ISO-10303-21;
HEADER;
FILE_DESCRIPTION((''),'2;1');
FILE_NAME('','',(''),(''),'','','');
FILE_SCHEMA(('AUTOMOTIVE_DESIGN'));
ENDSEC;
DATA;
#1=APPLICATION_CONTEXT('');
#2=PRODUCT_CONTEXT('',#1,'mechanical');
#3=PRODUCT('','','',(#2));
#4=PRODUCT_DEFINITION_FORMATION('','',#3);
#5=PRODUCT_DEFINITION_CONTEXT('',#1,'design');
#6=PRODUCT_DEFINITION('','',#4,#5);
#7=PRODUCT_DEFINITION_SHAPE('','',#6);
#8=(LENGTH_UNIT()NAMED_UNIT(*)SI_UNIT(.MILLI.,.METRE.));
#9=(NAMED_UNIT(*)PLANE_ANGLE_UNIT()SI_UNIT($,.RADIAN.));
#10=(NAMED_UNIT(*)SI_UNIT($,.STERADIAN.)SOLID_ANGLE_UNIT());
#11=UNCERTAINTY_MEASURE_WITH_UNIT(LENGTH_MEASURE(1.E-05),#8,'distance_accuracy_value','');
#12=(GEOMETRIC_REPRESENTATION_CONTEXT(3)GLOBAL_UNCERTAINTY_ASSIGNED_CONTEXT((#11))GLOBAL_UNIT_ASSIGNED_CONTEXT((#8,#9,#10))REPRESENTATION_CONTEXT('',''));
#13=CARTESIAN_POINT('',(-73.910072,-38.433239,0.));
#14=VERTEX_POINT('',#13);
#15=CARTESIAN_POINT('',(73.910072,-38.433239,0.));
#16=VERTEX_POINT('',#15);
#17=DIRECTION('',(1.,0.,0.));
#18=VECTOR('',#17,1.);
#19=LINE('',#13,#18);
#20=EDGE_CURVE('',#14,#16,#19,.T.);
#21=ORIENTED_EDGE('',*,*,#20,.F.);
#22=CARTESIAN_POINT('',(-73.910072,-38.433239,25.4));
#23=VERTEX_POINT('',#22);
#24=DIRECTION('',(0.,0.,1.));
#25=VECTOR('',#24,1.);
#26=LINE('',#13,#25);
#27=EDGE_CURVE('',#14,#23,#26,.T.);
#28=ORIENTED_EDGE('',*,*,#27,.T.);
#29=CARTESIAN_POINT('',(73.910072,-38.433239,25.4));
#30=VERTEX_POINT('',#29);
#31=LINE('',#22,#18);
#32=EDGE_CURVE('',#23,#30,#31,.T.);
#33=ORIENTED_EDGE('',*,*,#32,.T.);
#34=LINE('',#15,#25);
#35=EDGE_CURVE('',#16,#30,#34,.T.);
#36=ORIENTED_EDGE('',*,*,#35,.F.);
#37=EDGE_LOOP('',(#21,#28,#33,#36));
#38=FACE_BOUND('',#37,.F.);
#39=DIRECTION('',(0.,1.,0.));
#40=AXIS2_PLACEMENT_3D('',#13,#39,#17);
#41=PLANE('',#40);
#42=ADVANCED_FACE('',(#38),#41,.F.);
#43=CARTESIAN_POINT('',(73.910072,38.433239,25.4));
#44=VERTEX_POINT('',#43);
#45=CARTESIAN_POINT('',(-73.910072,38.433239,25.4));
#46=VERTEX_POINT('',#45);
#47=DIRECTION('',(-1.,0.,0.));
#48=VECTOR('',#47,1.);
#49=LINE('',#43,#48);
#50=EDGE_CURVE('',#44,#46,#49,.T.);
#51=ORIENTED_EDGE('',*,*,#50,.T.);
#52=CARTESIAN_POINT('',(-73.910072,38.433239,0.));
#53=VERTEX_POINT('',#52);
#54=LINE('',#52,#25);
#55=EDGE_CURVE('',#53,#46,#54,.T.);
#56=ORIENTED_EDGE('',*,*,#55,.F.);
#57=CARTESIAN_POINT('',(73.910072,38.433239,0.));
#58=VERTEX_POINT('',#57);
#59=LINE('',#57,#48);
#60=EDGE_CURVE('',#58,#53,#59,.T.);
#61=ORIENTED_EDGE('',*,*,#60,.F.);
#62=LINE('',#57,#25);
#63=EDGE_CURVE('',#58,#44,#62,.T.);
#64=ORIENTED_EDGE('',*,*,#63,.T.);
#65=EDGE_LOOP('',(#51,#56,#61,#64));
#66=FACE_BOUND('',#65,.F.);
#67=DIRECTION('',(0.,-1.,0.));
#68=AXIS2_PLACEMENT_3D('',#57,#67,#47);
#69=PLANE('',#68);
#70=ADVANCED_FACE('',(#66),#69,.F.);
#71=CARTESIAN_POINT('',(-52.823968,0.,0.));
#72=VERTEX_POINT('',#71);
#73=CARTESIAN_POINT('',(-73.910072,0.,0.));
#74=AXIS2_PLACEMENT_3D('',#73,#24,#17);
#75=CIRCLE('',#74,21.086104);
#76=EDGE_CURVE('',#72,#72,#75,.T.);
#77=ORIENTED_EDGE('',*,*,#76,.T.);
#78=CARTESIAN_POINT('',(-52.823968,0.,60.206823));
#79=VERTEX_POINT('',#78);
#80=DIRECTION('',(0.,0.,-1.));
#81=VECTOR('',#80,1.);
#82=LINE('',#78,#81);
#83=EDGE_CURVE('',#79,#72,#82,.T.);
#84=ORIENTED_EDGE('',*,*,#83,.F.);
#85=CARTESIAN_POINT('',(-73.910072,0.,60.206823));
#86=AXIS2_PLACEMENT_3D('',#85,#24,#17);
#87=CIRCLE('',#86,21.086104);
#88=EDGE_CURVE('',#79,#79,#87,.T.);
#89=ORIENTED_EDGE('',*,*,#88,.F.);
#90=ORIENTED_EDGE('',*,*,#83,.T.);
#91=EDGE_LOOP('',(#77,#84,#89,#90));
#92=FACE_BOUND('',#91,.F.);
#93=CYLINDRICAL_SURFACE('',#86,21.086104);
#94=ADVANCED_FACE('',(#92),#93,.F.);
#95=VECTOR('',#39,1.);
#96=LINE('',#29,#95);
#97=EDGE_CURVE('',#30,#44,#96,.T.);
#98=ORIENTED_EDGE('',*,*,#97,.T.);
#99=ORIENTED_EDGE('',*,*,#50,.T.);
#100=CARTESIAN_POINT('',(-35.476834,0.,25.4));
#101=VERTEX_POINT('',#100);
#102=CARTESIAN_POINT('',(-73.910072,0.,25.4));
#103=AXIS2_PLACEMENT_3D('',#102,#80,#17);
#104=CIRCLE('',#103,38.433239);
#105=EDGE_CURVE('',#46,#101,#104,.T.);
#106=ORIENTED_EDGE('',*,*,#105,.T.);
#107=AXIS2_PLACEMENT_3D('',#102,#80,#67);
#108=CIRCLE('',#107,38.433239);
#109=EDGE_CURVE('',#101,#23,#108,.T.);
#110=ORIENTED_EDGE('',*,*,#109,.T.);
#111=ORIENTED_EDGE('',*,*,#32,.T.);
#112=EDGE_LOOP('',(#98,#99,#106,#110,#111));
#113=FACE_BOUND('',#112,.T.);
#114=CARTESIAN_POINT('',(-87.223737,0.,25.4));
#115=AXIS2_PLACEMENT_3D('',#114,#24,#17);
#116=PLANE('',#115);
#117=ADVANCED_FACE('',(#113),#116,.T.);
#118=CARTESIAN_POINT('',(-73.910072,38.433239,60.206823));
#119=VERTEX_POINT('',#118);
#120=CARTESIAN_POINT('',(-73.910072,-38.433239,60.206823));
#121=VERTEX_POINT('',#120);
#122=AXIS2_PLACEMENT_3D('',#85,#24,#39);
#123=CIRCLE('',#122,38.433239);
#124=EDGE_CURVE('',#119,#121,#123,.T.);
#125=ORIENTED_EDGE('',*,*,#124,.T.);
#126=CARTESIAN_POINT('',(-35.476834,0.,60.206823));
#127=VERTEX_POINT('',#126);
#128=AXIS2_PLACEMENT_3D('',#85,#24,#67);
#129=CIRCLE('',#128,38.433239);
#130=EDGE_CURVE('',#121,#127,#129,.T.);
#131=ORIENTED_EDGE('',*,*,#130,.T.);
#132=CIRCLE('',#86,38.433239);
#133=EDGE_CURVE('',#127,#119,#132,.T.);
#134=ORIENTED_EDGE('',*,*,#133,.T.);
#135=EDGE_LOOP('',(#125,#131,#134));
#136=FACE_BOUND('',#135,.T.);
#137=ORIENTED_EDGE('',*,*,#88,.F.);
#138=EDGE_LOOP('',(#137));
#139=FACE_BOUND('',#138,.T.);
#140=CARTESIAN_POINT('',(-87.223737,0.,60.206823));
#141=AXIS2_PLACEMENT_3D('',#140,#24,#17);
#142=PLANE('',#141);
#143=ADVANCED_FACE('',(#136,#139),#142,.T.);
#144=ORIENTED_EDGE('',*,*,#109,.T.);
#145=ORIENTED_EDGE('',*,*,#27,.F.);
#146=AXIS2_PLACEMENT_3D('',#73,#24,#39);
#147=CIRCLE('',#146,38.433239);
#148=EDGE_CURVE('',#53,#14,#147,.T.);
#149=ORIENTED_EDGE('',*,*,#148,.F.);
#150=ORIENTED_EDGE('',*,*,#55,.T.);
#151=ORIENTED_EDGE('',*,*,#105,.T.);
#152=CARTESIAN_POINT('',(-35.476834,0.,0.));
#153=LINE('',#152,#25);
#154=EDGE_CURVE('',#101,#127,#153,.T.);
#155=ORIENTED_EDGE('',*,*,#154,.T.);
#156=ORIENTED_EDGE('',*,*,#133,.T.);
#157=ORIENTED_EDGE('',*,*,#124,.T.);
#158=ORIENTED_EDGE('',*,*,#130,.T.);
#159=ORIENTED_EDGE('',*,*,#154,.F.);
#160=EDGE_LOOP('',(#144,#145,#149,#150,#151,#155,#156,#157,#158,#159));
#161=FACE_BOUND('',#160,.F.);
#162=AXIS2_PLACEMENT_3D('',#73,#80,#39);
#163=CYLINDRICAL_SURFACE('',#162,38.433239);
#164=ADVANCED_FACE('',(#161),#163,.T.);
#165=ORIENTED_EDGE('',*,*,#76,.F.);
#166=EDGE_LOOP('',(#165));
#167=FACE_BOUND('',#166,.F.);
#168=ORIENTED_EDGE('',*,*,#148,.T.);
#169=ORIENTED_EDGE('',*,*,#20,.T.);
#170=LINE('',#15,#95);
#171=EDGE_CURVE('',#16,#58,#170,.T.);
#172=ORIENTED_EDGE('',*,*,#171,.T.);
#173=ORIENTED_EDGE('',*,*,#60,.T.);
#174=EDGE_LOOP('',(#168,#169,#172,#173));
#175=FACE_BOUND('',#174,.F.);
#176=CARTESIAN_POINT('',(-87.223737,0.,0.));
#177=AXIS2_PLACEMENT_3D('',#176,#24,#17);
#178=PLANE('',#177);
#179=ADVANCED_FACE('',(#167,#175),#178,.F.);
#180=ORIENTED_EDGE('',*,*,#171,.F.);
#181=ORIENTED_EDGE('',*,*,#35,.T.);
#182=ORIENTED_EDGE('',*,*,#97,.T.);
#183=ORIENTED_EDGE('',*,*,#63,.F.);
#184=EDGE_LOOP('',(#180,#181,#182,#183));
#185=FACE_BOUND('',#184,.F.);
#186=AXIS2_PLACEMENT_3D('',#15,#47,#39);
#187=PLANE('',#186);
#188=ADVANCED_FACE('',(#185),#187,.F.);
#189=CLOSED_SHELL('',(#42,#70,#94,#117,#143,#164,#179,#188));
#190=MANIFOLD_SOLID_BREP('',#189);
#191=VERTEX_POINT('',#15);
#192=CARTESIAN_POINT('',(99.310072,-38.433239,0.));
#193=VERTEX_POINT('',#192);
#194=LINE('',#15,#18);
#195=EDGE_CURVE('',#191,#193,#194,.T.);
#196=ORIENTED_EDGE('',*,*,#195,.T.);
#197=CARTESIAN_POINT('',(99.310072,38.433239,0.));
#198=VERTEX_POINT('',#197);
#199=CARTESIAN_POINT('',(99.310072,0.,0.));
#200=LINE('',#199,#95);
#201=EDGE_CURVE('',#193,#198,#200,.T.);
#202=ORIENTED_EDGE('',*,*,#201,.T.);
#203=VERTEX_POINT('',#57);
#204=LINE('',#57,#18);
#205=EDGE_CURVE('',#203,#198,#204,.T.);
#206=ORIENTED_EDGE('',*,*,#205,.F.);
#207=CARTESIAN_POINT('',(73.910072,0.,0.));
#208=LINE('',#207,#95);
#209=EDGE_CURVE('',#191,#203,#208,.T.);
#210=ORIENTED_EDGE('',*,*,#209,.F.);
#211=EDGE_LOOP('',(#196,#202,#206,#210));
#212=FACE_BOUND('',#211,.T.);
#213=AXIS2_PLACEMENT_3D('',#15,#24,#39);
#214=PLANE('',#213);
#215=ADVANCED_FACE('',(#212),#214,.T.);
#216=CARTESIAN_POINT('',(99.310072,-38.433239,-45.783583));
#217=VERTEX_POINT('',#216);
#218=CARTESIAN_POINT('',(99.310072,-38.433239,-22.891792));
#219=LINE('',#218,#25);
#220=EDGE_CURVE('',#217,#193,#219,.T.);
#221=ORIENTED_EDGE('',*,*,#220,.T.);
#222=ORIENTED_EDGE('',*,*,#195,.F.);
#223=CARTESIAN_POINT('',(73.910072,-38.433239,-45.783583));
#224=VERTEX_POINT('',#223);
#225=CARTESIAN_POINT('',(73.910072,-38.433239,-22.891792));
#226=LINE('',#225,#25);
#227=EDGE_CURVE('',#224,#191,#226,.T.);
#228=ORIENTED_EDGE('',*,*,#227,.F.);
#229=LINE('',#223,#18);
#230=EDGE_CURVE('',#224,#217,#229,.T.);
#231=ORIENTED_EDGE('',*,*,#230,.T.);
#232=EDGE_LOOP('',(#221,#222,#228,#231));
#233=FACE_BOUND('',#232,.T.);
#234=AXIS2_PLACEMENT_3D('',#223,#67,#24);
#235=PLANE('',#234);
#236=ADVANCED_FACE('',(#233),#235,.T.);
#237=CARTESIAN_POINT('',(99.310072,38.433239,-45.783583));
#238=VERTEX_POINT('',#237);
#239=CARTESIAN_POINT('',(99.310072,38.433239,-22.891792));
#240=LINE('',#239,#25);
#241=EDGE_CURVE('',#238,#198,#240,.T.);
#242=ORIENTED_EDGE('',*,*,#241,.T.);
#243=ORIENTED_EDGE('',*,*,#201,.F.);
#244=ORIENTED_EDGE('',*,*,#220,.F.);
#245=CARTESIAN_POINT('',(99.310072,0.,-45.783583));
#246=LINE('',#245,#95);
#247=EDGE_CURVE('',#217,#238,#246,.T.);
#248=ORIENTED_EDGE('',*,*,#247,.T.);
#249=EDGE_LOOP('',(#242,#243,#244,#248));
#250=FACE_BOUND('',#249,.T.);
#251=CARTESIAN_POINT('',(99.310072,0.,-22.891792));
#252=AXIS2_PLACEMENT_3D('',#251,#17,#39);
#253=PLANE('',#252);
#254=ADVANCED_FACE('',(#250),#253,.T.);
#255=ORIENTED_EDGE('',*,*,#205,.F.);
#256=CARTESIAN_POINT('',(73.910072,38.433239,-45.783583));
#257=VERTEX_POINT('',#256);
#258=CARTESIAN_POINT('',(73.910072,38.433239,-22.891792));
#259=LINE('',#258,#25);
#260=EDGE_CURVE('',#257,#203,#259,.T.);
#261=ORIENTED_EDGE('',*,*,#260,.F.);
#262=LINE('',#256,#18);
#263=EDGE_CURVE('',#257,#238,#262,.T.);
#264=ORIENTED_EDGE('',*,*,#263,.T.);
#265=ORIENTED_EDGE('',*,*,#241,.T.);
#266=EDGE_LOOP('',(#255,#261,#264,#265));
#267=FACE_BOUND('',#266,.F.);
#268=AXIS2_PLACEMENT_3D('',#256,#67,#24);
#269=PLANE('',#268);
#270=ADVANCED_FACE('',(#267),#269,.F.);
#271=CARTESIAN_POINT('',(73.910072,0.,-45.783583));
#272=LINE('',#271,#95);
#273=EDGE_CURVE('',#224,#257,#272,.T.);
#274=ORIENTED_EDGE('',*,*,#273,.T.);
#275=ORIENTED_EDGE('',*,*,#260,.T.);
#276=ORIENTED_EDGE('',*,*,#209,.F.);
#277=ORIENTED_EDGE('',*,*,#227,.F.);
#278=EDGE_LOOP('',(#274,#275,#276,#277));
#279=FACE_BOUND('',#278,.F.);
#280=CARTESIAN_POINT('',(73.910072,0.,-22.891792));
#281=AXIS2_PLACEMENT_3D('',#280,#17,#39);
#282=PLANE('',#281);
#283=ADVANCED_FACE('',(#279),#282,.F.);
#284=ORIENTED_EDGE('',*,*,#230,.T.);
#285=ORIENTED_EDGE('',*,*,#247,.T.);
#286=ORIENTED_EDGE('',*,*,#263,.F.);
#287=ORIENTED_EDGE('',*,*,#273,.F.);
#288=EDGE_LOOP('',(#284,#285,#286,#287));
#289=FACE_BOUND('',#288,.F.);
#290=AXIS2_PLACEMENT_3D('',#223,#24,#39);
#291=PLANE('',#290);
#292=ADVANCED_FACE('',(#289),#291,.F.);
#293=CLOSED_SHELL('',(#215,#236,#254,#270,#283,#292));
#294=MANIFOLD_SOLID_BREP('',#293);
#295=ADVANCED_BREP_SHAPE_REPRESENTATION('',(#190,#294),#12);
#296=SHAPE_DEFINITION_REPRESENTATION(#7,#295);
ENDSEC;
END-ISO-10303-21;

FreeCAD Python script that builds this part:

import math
import FreeCAD as App
import Part
import Sketcher
Q = App.Units.Quantity


def add_polygon(sketch, points):
    """Adds a closed chain of lines whose ends are joined by coincident constraints."""
    first, n = sketch.GeometryCount, len(points)
    for a, b in zip(points, points[1:] + points[:1]):
        sketch.addGeometry(Part.LineSegment(App.Vector(*a, 0), App.Vector(*b, 0)), False)
    for i in range(n):
        sketch.addConstraint(Sketcher.Constraint("Coincident", first + i, 2, first + (i + 1) % n, 1))

doc = App.newDocument("Part")
params = doc.addObject("Spreadsheet::Sheet", "Params")
for row, (alias, value) in enumerate([
    ("pad1_length", "1 in"),
    ("pad2_length", "60.206823 mm"),
    ("pocket1_length", "1 in"),
    ("pocket2_length", "62.164955 mm"),
    ("pad3_length", "1 in"),
], start=1):
    params.set(f"A{row}", alias)
    params.set(f"B{row}", "=" + value)
    params.setAlias(f"B{row}", alias)

body = doc.addObject("PartDesign::Body", "Body")

# Sketch on XY plane
sketch1 = doc.addObject("Sketcher::SketchObject", "Sketch")
body.addObject(sketch1)
sketch1.AttachmentSupport = (doc.XY_Plane, [""])
sketch1.MapMode = "FlatFace"
sketch1.addGeometry([
    Part.ArcOfCircle(Part.Circle(App.Vector(-74, 0, 0), App.Vector(0, 0, 1), 38), math.radians(90), math.radians(270)),
    Part.LineSegment(App.Vector(-74, -38, 0), App.Vector(74, -38, 0)),
    Part.LineSegment(App.Vector(74, -38, 0), App.Vector(74, 38, 0)),
    Part.LineSegment(App.Vector(74, 38, 0), App.Vector(-74, 38, 0)),
], False)
sketch1.addConstraint([
    Sketcher.Constraint("Tangent", 0, 2, 1, 1),
    Sketcher.Constraint("Coincident", 1, 2, 2, 1),
    Sketcher.Constraint("Coincident", 2, 2, 3, 1),
    Sketcher.Constraint("Tangent", 3, 2, 0, 1),
    Sketcher.Constraint("Horizontal", 1),
    Sketcher.Constraint("Vertical", 2),
    Sketcher.Constraint("Horizontal", 3),
    Sketcher.Constraint("Symmetric", 0, 2, 2, 2, -1, 1),
    Sketcher.Constraint("Radius", 0, Q("38.433239 mm")),
    Sketcher.Constraint("DistanceX", 1, 1, 1, 2, Q("147.820145 mm")),
])
pad1 = doc.addObject("PartDesign::Pad", "Pad")
body.addObject(pad1)
pad1.Profile = sketch1
pad1.setExpression("Length", "Params.pad1_length")

# Sketch on XY plane
sketch2 = doc.addObject("Sketcher::SketchObject", "Sketch001")
body.addObject(sketch2)
sketch2.AttachmentSupport = (doc.XY_Plane, [""])
sketch2.MapMode = "FlatFace"
sketch2.addGeometry([
    Part.ArcOfCircle(Part.Circle(App.Vector(-74, 0, 0), App.Vector(0, 0, 1), 38), math.radians(90), math.radians(270)),
    Part.ArcOfCircle(Part.Circle(App.Vector(-74, 0, 0), App.Vector(0, 0, 1), 38), math.radians(-90), math.radians(0)),
    Part.ArcOfCircle(Part.Circle(App.Vector(-74, 0, 0), App.Vector(0, 0, 1), 38), math.radians(0), math.radians(90)),
], False)
sketch2.addConstraint([
    Sketcher.Constraint("Tangent", 0, 2, 1, 1),
    Sketcher.Constraint("Tangent", 1, 2, 2, 1),
    Sketcher.Constraint("Tangent", 2, 2, 0, 1),
    Sketcher.Constraint("Symmetric", 0, 2, 2, 2, -1),
    Sketcher.Constraint("PointOnObject", 1, 2, -1),
    Sketcher.Constraint("Vertical", 2, 3, 0, 2),
    Sketcher.Constraint("Radius", 0, Q("38.433239 mm")),
    Sketcher.Constraint("DistanceX", 0, 3, -1, 1, Q("73.910072 mm")),
])
pad2 = doc.addObject("PartDesign::Pad", "Pad001")
body.addObject(pad2)
pad2.Profile = sketch2
pad2.setExpression("Length", "Params.pad2_length")

# Sketch on XY plane
sketch3 = doc.addObject("Sketcher::SketchObject", "Sketch002")
body.addObject(sketch3)
sketch3.AttachmentSupport = (doc.XY_Plane, [""])
sketch3.MapMode = "FlatFace"
sketch3.addGeometry(Part.Circle(App.Vector(-73, 0, 0), App.Vector(0, 0, 1), 20), False)
sketch3.addConstraint([
    Sketcher.Constraint("PointOnObject", 0, 3, -1),
    Sketcher.Constraint("Diameter", 0, Q("39.386868 mm")),
    Sketcher.Constraint("DistanceX", 0, 3, -1, 1, Q("73.307596 mm")),
])
pocket1 = doc.addObject("PartDesign::Pocket", "Pocket")
body.addObject(pocket1)
pocket1.Profile = sketch3
pocket1.setExpression("Length", "Params.pocket1_length")

# Sketch on XY plane
sketch4 = doc.addObject("Sketcher::SketchObject", "Sketch003")
body.addObject(sketch4)
sketch4.AttachmentSupport = (doc.XY_Plane, [""])
sketch4.MapMode = "FlatFace"
sketch4.AttachmentOffset = App.Placement(App.Vector(0, 0, 60.206823), App.Rotation())
sketch4.addGeometry(Part.Circle(App.Vector(-74, 0, 0), App.Vector(0, 0, 1), 21), False)
sketch4.addConstraint([
    Sketcher.Constraint("PointOnObject", 0, 3, -1),
    Sketcher.Constraint("Diameter", 0, Q("42.172208 mm")),
    Sketcher.Constraint("DistanceX", 0, 3, -1, 1, Q("73.910072 mm")),
])
pocket2 = doc.addObject("PartDesign::Pocket", "Pocket001")
body.addObject(pocket2)
pocket2.Profile = sketch4
pocket2.setExpression("Length", "Params.pocket2_length")
body2 = doc.addObject("PartDesign::Body", "Body001")

# Sketch on YZ plane
sketch5 = doc.addObject("Sketcher::SketchObject", "Sketch004")
body2.addObject(sketch5)
sketch5.AttachmentSupport = (doc.getObject("YZ_Plane001"), [""])
sketch5.MapMode = "FlatFace"
sketch5.AttachmentOffset = App.Placement(App.Vector(0, 0, 73.910072), App.Rotation())
add_polygon(sketch5, [(-38, 0), (-38, -46), (38, -46), (38, 0)])  # lines 0-3
sketch5.addConstraint([
    Sketcher.Constraint("Vertical", 0),
    Sketcher.Constraint("Horizontal", 1),
    Sketcher.Constraint("Vertical", 2),
    Sketcher.Constraint("Horizontal", 3),
    Sketcher.Constraint("Symmetric", 2, 2, 3, 2, -1, 1),
    Sketcher.Constraint("DistanceX", 1, 1, 1, 2, Q("76.866478 mm")),
    Sketcher.Constraint("DistanceY", 0, 2, 0, 1, Q("45.783583 mm")),
])
pad3 = doc.addObject("PartDesign::Pad", "Pad002")
body2.addObject(pad3)
pad3.Profile = sketch5
pad3.setExpression("Length", "Params.pad3_length")

doc.recompute()
